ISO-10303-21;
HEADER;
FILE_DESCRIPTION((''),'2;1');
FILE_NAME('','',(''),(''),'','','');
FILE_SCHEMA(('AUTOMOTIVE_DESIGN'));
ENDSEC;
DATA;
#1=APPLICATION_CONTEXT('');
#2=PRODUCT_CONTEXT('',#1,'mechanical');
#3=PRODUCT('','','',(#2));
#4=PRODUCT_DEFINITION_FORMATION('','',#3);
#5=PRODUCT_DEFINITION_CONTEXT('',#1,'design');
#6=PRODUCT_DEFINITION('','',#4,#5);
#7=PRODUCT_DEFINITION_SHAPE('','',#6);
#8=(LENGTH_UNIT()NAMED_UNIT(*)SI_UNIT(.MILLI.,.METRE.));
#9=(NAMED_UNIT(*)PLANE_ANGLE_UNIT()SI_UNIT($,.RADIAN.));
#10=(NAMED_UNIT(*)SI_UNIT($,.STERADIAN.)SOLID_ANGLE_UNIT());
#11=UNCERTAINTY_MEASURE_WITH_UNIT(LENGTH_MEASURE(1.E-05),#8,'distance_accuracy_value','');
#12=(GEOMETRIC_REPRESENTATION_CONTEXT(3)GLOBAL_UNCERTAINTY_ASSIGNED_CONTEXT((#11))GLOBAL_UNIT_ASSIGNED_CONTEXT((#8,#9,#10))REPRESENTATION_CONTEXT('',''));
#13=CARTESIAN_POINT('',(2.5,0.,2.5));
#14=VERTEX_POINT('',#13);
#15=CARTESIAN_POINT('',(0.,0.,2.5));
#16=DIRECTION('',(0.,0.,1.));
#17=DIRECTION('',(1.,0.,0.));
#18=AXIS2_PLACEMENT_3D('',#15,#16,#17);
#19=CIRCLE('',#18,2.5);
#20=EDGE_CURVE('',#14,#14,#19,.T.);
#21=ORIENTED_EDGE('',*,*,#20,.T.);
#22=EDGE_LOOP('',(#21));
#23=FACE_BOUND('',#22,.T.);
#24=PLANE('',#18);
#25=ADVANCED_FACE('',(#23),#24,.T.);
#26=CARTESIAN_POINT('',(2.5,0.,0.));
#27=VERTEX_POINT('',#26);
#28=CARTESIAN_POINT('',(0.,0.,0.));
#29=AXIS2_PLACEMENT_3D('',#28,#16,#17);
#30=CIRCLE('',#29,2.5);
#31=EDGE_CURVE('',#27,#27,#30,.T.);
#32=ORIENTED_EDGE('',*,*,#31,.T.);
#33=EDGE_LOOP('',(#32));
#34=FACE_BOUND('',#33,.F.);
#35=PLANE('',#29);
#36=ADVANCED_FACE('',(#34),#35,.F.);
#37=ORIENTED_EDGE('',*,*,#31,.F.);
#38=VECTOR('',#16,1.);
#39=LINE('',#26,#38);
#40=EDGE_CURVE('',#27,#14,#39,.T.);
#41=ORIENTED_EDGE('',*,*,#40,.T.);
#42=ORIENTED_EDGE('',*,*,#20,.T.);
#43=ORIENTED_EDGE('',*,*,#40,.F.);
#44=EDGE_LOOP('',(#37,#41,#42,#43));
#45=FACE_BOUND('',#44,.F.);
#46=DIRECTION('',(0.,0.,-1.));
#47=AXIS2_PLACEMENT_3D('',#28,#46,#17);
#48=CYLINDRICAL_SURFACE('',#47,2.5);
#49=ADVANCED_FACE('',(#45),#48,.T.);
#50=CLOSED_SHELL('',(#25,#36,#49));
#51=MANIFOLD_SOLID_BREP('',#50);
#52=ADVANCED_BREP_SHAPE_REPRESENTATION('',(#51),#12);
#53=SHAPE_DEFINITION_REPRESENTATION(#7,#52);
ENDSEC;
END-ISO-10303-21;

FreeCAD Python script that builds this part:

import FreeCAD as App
import Part
import Sketcher

doc = App.newDocument("Part")
body = doc.addObject("PartDesign::Body", "Body")

sketch1 = doc.addObject("Sketcher::SketchObject", "Sketch")
body.addObject(sketch1)
sketch1.AttachmentSupport = (doc.XY_Plane, [""])
sketch1.MapMode = "FlatFace"
sketch1.addGeometry(Part.Circle(App.Vector(0, 0, 0), App.Vector(0, 0, 1), 2.5), False)
sketch1.addConstraint(Sketcher.Constraint("Coincident", 0, 3, -1, 1))
sketch1.addConstraint(Sketcher.Constraint("Diameter", 0, 5.0))
pad1 = doc.addObject("PartDesign::Pad", "Pad")
body.addObject(pad1)
pad1.Profile = sketch1
pad1.Length = 2.5

doc.recompute()
